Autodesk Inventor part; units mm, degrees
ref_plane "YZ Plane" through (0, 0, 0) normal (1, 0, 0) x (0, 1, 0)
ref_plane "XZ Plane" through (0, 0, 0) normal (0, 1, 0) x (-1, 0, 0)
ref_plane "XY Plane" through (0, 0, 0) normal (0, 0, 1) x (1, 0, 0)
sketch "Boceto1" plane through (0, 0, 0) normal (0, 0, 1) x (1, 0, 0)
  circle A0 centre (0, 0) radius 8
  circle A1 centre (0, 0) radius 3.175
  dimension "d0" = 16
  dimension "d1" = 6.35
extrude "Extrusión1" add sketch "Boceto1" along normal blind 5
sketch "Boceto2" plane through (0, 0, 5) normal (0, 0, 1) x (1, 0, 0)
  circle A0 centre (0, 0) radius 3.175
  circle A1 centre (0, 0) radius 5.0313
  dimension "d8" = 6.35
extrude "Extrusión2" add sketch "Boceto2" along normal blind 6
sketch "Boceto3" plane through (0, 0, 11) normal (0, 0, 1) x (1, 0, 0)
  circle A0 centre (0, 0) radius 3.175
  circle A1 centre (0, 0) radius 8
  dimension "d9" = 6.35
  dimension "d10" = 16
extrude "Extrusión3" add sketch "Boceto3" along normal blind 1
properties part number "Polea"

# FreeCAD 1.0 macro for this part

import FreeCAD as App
import Part
import Sketcher
from FreeCAD import Vector
Q = App.Units.Quantity

doc = App.newDocument("Part")
body = doc.addObject("PartDesign::Body", "Body")

sketch1 = body.newObject("Sketcher::SketchObject", "Sketch")
sketch1.AttachmentSupport = (doc.getObject("XY_Plane"), [""])
sketch1.MapMode = "FlatFace"
sketch1.addGeometry([
    Part.Circle(Vector(0, 0, 0), Vector(0, 0, 1), 8),
    Part.Circle(Vector(0, 0, 0), Vector(0, 0, 1), 3.2),
], False)
sketch1.addConstraint([
    Sketcher.Constraint("Coincident", 0, 3, -1, 1),
    Sketcher.Constraint("Coincident", 1, 3, -1, 1),
    Sketcher.Constraint("Diameter", 0, Q("16 mm")),
    Sketcher.Constraint("Diameter", 1, Q("6.35 mm")),
])
pad1 = body.newObject("PartDesign::Pad", "Pad")
pad1.Profile = sketch1
pad1.Length = 5

sketch2 = body.newObject("Sketcher::SketchObject", "Sketch001")
sketch2.AttachmentSupport = (doc.getObject("XY_Plane"), [""])
sketch2.MapMode = "FlatFace"
sketch2.AttachmentOffset = App.Placement(Vector(0, 0, 5), App.Rotation())
sketch2.addGeometry([
    Part.Circle(Vector(0, 0, 0), Vector(0, 0, 1), 5),
    Part.Circle(Vector(0, 0, 0), Vector(0, 0, 1), 3.2),
], False)
sketch2.addConstraint([
    Sketcher.Constraint("Coincident", 0, 3, -1, 1),
    Sketcher.Constraint("Coincident", 1, 3, -1, 1),
    Sketcher.Constraint("Diameter", 1, Q("6.35 mm")),
    Sketcher.Constraint("Diameter", 0, Q("10.0626 mm")),
])
pad2 = body.newObject("PartDesign::Pad", "Pad001")
pad2.Profile = sketch2
pad2.Length = 6

sketch3 = body.newObject("Sketcher::SketchObject", "Sketch002")
sketch3.AttachmentSupport = (doc.getObject("XY_Plane"), [""])
sketch3.MapMode = "FlatFace"
sketch3.AttachmentOffset = App.Placement(Vector(0, 0, 11), App.Rotation())
sketch3.addGeometry([
    Part.Circle(Vector(0, 0, 0), Vector(0, 0, 1), 8),
    Part.Circle(Vector(0, 0, 0), Vector(0, 0, 1), 3.2),
], False)
sketch3.addConstraint([
    Sketcher.Constraint("Coincident", 0, 3, -1, 1),
    Sketcher.Constraint("Coincident", 1, 3, -1, 1),
    Sketcher.Constraint("Diameter", 0, Q("16 mm")),
    Sketcher.Constraint("Diameter", 1, Q("6.35 mm")),
])
pad3 = body.newObject("PartDesign::Pad", "Pad002")
pad3.Profile = sketch3
pad3.Length = 1

doc.recompute()
